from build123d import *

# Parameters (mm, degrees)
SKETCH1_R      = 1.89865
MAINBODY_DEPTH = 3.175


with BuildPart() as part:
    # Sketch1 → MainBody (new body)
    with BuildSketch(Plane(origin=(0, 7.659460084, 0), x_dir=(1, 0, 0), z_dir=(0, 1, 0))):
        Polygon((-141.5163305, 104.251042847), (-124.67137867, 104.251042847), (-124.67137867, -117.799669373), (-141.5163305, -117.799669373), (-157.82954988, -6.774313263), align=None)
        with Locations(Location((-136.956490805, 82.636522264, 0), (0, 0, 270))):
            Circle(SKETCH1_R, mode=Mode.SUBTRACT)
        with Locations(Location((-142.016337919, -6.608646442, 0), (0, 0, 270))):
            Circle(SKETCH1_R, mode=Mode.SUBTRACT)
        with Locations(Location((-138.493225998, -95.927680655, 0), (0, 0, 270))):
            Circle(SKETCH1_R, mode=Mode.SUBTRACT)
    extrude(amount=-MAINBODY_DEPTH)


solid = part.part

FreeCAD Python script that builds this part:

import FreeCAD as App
import Part
import Sketcher
Q = App.Units.Quantity

doc = App.newDocument("Part")
body = doc.addObject("PartDesign::Body", "Body")

# Sketch on XZ plane
sketch1 = body.newObject("Sketcher::SketchObject", "Sketch")
sketch1.AttachmentSupport = (doc.getObject("XZ_Plane"), [""])
sketch1.MapMode = "FlatFace"
sketch1.AttachmentOffset = App.Placement(App.Vector(0, 0, -7.65946), App.Rotation())
sketch1.addGeometry([
    Part.LineSegment(App.Vector(-124.7, -104.3, 0), App.Vector(-141.5, -104.3, 0)),  # 0
    Part.LineSegment(App.Vector(-141.5, -104.3, 0), App.Vector(-157.8, 6.8, 0)),  # 1
    Part.LineSegment(App.Vector(-157.8, 6.8, 0), App.Vector(-141.5, 117.8, 0)),  # 2
    Part.LineSegment(App.Vector(-141.5, 117.8, 0), App.Vector(-124.7, 117.8, 0)),  # 3
    Part.LineSegment(App.Vector(-124.7, 117.8, 0), App.Vector(-124.7, -104.3, 0)),  # 4
    Part.Circle(App.Vector(-138.5, 95.9, 0), App.Vector(0, 0, 1), 1.9),  # 5
    Part.Circle(App.Vector(-137, -82.6, 0), App.Vector(0, 0, 1), 1.9),  # 6
    Part.Circle(App.Vector(-142, 6.6, 0), App.Vector(0, 0, 1), 1.9),  # 7
], False)
sketch1.addConstraint([
    Sketcher.Constraint("Coincident", 0, 2, 1, 1),
    Sketcher.Constraint("Coincident", 1, 2, 2, 1),
    Sketcher.Constraint("Coincident", 2, 2, 3, 1),
    Sketcher.Constraint("Coincident", 3, 2, 4, 1),
    Sketcher.Constraint("Coincident", 4, 2, 0, 1),
    Sketcher.Constraint("Horizontal", 0),
    Sketcher.Constraint("Horizontal", 3),
    Sketcher.Constraint("Vertical", 4),
    Sketcher.Constraint("Equal", 5, 6),
    Sketcher.Constraint("Equal", 6, 7),
    Sketcher.Constraint("Vertical", 0, 2, 2, 2),
    Sketcher.Constraint("Equal", 1, 2),
    Sketcher.Constraint("Diameter", 5, Q("0.1495 in")),
    Sketcher.Constraint("DistanceX", 0, 2, 0, 1, 16.844952),
    Sketcher.Constraint("DistanceY", 4, 2, 4, 1, 222.050712),
    Sketcher.Constraint("DistanceY", -1, 1, 5, 3, 95.927681),
    Sketcher.Constraint("DistanceX", 6, 3, -1, 1, 136.956491),
    Sketcher.Constraint("DistanceX", 0, 2, -1, 1, 141.516331),
    Sketcher.Constraint("DistanceX", 1, 2, -1, 1, 157.82955),
    Sketcher.Constraint("DistanceY", -1, 1, 2, 2, 117.799669),
    Sketcher.Constraint("DistanceY", 6, 3, 7, 3, 89.245169),
    Sketcher.Constraint("DistanceX", 7, 3, 5, 3, 3.523112),
    Sketcher.Constraint("DistanceY", 0, 2, 6, 3, 21.614521),
    Sketcher.Constraint("DistanceX", 1, 2, 7, 3, 15.813212),
])
pad1 = body.newObject("PartDesign::Pad", "Pad")
pad1.Profile = sketch1
pad1.Length = Q("0.125 in")

doc.recompute()
